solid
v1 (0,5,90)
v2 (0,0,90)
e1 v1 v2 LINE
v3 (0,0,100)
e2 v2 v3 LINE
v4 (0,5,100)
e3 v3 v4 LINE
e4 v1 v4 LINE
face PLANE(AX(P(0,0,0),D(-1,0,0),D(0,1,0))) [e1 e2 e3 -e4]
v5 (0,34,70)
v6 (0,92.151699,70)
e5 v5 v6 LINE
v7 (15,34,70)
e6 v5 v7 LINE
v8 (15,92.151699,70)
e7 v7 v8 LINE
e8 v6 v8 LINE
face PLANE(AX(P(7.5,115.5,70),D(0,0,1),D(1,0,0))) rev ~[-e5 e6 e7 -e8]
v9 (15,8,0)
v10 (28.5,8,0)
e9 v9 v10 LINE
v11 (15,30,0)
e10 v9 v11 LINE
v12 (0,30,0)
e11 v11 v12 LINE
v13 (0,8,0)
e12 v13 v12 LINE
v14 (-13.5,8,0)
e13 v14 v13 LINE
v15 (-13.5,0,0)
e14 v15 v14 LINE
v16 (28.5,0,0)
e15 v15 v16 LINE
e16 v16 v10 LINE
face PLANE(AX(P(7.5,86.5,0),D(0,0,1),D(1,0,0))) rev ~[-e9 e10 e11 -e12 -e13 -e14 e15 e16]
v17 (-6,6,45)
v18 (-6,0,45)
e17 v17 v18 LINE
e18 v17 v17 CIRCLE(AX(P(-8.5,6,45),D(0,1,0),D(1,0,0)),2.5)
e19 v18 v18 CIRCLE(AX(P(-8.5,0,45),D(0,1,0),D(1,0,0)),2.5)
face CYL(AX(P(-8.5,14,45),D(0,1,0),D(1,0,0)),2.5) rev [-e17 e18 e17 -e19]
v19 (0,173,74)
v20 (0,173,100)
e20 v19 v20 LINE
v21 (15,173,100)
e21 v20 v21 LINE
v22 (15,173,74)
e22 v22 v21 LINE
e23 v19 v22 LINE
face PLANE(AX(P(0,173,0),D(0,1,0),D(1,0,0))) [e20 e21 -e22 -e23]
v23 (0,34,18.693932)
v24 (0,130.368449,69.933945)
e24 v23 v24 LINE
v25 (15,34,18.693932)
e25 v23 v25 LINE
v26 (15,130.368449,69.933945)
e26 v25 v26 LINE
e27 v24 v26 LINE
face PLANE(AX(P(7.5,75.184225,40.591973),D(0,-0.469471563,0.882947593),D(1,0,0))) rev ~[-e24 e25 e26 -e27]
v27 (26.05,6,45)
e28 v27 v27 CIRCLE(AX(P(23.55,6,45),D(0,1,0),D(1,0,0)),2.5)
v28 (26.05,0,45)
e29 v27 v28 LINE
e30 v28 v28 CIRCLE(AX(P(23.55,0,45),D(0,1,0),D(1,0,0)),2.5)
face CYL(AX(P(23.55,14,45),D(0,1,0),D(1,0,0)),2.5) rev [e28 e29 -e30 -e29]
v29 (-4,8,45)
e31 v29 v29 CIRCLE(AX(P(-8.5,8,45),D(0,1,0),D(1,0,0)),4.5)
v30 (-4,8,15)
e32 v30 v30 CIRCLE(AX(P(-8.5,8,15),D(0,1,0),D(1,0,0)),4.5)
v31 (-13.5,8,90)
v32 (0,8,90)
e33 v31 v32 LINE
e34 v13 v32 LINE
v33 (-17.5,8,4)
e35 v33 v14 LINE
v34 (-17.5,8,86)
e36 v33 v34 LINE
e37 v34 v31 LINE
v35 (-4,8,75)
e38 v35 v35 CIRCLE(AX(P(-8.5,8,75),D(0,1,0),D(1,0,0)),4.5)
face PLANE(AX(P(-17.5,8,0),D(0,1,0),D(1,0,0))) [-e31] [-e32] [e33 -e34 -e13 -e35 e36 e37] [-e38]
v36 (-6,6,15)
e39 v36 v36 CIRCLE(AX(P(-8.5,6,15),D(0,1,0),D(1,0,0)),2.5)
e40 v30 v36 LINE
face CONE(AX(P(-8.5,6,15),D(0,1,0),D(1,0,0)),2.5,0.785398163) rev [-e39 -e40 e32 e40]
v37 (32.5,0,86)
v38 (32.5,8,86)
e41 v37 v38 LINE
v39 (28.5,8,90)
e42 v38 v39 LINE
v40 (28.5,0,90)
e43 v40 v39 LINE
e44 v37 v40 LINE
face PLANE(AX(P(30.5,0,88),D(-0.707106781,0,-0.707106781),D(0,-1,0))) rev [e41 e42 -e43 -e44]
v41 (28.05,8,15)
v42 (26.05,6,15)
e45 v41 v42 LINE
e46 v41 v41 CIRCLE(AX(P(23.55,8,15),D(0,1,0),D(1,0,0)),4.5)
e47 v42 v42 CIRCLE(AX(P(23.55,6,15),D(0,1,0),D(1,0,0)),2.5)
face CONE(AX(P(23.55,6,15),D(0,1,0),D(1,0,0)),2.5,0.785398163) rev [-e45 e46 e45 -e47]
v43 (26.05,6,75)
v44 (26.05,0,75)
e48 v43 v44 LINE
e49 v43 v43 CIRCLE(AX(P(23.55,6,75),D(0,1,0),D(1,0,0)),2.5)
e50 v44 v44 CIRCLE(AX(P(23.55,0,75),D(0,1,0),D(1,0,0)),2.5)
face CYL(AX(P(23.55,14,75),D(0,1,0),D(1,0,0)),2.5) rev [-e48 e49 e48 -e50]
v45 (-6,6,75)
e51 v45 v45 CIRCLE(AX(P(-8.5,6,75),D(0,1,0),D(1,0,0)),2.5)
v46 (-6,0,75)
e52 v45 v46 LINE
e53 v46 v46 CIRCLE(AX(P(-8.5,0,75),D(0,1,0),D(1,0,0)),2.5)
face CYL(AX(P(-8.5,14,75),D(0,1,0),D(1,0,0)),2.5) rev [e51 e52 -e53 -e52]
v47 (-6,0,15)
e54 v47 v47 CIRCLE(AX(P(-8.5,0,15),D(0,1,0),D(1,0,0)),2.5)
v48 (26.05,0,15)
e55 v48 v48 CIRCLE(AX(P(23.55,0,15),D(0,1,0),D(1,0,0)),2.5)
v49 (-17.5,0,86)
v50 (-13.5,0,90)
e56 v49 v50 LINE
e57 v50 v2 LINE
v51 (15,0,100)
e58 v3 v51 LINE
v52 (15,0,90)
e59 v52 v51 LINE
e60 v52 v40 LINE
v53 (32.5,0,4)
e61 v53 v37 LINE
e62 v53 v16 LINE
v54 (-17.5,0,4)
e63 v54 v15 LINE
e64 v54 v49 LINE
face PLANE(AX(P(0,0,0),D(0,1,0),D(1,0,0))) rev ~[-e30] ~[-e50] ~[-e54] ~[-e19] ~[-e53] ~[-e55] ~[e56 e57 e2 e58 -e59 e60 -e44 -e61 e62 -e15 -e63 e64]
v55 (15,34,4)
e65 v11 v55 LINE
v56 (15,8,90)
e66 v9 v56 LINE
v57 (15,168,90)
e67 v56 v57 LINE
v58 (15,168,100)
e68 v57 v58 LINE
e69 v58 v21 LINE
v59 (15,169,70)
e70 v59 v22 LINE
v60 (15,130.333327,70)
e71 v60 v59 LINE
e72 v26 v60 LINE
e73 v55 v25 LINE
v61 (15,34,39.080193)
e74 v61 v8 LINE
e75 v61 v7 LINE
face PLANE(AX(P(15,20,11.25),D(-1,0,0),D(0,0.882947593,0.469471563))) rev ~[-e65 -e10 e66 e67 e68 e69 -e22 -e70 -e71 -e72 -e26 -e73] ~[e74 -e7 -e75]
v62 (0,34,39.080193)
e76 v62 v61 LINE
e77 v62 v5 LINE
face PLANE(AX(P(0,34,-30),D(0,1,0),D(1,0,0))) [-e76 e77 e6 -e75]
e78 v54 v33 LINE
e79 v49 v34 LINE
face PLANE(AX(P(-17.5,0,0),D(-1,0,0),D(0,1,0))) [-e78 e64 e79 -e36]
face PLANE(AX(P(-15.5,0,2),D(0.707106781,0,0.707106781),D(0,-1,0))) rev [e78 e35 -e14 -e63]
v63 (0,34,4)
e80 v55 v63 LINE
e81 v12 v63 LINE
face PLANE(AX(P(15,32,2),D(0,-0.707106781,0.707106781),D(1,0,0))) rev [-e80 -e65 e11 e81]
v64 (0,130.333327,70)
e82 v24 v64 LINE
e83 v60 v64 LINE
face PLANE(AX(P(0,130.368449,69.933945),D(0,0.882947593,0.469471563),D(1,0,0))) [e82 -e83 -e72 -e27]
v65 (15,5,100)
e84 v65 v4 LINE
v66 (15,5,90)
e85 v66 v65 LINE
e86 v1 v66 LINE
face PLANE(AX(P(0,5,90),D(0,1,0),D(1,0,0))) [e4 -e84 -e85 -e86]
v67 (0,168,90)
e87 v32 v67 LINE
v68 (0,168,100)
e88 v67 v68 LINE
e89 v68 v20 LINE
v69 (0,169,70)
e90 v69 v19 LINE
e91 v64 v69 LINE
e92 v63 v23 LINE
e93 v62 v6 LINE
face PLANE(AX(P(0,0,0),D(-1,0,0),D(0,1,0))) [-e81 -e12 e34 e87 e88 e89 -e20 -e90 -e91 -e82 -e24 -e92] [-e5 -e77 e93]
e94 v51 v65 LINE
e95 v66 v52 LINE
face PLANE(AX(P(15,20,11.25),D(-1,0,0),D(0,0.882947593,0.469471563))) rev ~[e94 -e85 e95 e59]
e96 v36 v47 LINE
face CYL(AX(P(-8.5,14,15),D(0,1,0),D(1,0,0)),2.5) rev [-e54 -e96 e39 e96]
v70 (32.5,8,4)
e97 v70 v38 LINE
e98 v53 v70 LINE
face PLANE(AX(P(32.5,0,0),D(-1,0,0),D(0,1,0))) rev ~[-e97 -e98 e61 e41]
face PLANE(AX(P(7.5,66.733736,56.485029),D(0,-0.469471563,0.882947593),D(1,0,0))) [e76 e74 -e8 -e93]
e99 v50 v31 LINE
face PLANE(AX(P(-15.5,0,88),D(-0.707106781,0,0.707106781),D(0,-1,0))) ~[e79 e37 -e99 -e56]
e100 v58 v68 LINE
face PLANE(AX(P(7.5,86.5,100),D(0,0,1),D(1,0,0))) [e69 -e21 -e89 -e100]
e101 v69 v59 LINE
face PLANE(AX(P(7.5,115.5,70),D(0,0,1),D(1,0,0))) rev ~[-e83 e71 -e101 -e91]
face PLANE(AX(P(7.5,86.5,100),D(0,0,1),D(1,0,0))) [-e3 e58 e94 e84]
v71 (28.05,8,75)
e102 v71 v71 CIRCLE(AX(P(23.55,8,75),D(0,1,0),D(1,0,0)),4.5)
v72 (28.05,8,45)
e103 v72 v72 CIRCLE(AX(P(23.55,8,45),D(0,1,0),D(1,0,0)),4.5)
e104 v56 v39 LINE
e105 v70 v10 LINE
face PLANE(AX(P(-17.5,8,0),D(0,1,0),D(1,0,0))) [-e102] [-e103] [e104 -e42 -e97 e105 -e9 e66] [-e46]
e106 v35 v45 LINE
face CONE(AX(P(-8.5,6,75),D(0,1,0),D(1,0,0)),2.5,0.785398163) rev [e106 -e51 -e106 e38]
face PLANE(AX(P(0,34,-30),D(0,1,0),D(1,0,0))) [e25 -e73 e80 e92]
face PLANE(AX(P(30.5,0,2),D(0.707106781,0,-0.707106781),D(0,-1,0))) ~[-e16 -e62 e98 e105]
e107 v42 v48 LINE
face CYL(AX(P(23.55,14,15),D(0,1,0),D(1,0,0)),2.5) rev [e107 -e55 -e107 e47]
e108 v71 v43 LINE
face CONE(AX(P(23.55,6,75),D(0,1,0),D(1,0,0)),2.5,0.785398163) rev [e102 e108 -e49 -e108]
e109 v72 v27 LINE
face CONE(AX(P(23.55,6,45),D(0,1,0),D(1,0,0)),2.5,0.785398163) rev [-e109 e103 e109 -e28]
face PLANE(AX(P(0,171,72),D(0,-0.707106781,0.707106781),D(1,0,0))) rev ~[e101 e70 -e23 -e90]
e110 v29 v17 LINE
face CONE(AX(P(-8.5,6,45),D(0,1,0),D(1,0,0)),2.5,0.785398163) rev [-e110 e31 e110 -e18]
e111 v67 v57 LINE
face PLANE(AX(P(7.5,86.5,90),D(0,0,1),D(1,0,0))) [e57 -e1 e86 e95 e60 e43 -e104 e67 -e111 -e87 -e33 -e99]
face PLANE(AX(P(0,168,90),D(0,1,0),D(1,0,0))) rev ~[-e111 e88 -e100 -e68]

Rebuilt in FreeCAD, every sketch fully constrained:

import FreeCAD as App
import Part
import Sketcher


def edges_at(feature, points):
    """Names of the edges that pass closest to the given points."""
    edges = feature.Shape.Edges
    near = lambda p: min(range(len(edges)), key=lambda i: edges[i].distToShape(Part.Vertex(*p))[0])
    return sorted({f"Edge{near(p) + 1}" for p in points})

doc = App.newDocument("Part")
body = doc.addObject("PartDesign::Body", "Body")

# Sketch on XY plane
sketch1 = body.newObject("Sketcher::SketchObject", "Sketch")
sketch1.AttachmentSupport = (doc.getObject("XY_Plane"), [""])
sketch1.MapMode = "FlatFace"
sketch1.addGeometry(Part.Circle(App.Vector(0, 0, 0), App.Vector(0, 0, 1), 2.5), False)
sketch1.addConstraint(Sketcher.Constraint("Coincident", 0, 3, -1, 1))
sketch1.addConstraint(Sketcher.Constraint("Diameter", 0, 5.0))
pad1 = body.newObject("PartDesign::Pad", "Pad")
pad1.Profile = sketch1
pad1.Length = 20
body2 = doc.addObject("PartDesign::Body", "Body001")
doc.recompute()

body.Placement = App.Placement(App.Vector(0, 0, 0), App.Rotation(App.Vector(1, 0, 0), 90))
boolean = body2.newObject("PartDesign::Boolean", "Boolean")
boolean.Type = "Fuse"
boolean.addObjects([body])
body3 = doc.addObject("PartDesign::Body", "Body002")
doc.recompute()

body2.Placement = App.Placement(App.Vector(-8.5, 14, 75), App.Rotation(App.Vector(0, 0, 1), 0))
boolean2 = body3.newObject("PartDesign::Boolean", "Boolean001")
boolean2.Type = "Fuse"
boolean2.addObjects([body2])
body4 = doc.addObject("PartDesign::Body", "Body003")

# Sketch on XY plane
sketch2 = body4.newObject("Sketcher::SketchObject", "Sketch001")
sketch2.AttachmentSupport = (doc.getObject("XY_Plane003"), [""])
sketch2.MapMode = "FlatFace"
sketch2.addGeometry(Part.Circle(App.Vector(0, 0, 0), App.Vector(0, 0, 1), 2.5), False)
sketch2.addConstraint(Sketcher.Constraint("Coincident", 0, 3, -1, 1))
sketch2.addConstraint(Sketcher.Constraint("Diameter", 0, 5.0))
pad2 = body4.newObject("PartDesign::Pad", "Pad001")
pad2.Profile = sketch2
pad2.Length = 20
body5 = doc.addObject("PartDesign::Body", "Body004")
doc.recompute()

body4.Placement = App.Placement(App.Vector(0, 0, 0), App.Rotation(App.Vector(1, 0, 0), 90))
boolean3 = body5.newObject("PartDesign::Boolean", "Boolean002")
boolean3.Type = "Fuse"
boolean3.addObjects([body4])
body6 = doc.addObject("PartDesign::Body", "Body005")
doc.recompute()

body5.Placement = App.Placement(App.Vector(23.55, 14, 75), App.Rotation(App.Vector(0, 0, 1), 0))
boolean4 = body6.newObject("PartDesign::Boolean", "Boolean003")
boolean4.Type = "Fuse"
boolean4.addObjects([body5])
body7 = doc.addObject("PartDesign::Body", "Body006")

# Sketch on XY plane
sketch3 = body7.newObject("Sketcher::SketchObject", "Sketch002")
sketch3.AttachmentSupport = (doc.getObject("XY_Plane006"), [""])
sketch3.MapMode = "FlatFace"
sketch3.addGeometry(Part.Circle(App.Vector(0, 0, 0), App.Vector(0, 0, 1), 2.5), False)
sketch3.addConstraint(Sketcher.Constraint("Coincident", 0, 3, -1, 1))
sketch3.addConstraint(Sketcher.Constraint("Diameter", 0, 5.0))
pad3 = body7.newObject("PartDesign::Pad", "Pad002")
pad3.Profile = sketch3
pad3.Length = 20
body8 = doc.addObject("PartDesign::Body", "Body007")
doc.recompute()

body7.Placement = App.Placement(App.Vector(0, 0, 0), App.Rotation(App.Vector(1, 0, 0), 90))
boolean5 = body8.newObject("PartDesign::Boolean", "Boolean004")
boolean5.Type = "Fuse"
boolean5.addObjects([body7])
body9 = doc.addObject("PartDesign::Body", "Body008")
doc.recompute()

body8.Placement = App.Placement(App.Vector(-8.5, 14, 45), App.Rotation(App.Vector(0, 0, 1), 0))
boolean6 = body9.newObject("PartDesign::Boolean", "Boolean005")
boolean6.Type = "Fuse"
boolean6.addObjects([body8])
body10 = doc.addObject("PartDesign::Body", "Body009")

# Sketch on XY plane
sketch4 = body10.newObject("Sketcher::SketchObject", "Sketch003")
sketch4.AttachmentSupport = (doc.getObject("XY_Plane009"), [""])
sketch4.MapMode = "FlatFace"
sketch4.addGeometry(Part.Circle(App.Vector(0, 0, 0), App.Vector(0, 0, 1), 2.5), False)
sketch4.addConstraint(Sketcher.Constraint("Coincident", 0, 3, -1, 1))
sketch4.addConstraint(Sketcher.Constraint("Diameter", 0, 5.0))
pad4 = body10.newObject("PartDesign::Pad", "Pad003")
pad4.Profile = sketch4
pad4.Length = 20
body11 = doc.addObject("PartDesign::Body", "Body010")
doc.recompute()

body10.Placement = App.Placement(App.Vector(0, 0, 0), App.Rotation(App.Vector(1, 0, 0), 90))
boolean7 = body11.newObject("PartDesign::Boolean", "Boolean006")
boolean7.Type = "Fuse"
boolean7.addObjects([body10])
body12 = doc.addObject("PartDesign::Body", "Body011")
doc.recompute()

body11.Placement = App.Placement(App.Vector(23.55, 14, 45), App.Rotation(App.Vector(0, 0, 1), 0))
boolean8 = body12.newObject("PartDesign::Boolean", "Boolean007")
boolean8.Type = "Fuse"
boolean8.addObjects([body11])
body13 = doc.addObject("PartDesign::Body", "Body012")

# Sketch on XY plane
sketch5 = body13.newObject("Sketcher::SketchObject", "Sketch004")
sketch5.AttachmentSupport = (doc.getObject("XY_Plane012"), [""])
sketch5.MapMode = "FlatFace"
sketch5.addGeometry(Part.Circle(App.Vector(0, 0, 0), App.Vector(0, 0, 1), 2.5), False)
sketch5.addConstraint(Sketcher.Constraint("Coincident", 0, 3, -1, 1))
sketch5.addConstraint(Sketcher.Constraint("Diameter", 0, 5.0))
pad5 = body13.newObject("PartDesign::Pad", "Pad004")
pad5.Profile = sketch5
pad5.Length = 20
body14 = doc.addObject("PartDesign::Body", "Body013")
doc.recompute()

body13.Placement = App.Placement(App.Vector(0, 0, 0), App.Rotation(App.Vector(1, 0, 0), 90))
boolean9 = body14.newObject("PartDesign::Boolean", "Boolean008")
boolean9.Type = "Fuse"
boolean9.addObjects([body13])
body15 = doc.addObject("PartDesign::Body", "Body014")
doc.recompute()

body14.Placement = App.Placement(App.Vector(-8.5, 14, 15), App.Rotation(App.Vector(0, 0, 1), 0))
boolean10 = body15.newObject("PartDesign::Boolean", "Boolean009")
boolean10.Type = "Fuse"
boolean10.addObjects([body14])
body16 = doc.addObject("PartDesign::Body", "Body015")

# Sketch on XY plane
sketch6 = body16.newObject("Sketcher::SketchObject", "Sketch005")
sketch6.AttachmentSupport = (doc.getObject("XY_Plane015"), [""])
sketch6.MapMode = "FlatFace"
sketch6.addGeometry(Part.Circle(App.Vector(0, 0, 0), App.Vector(0, 0, 1), 2.5), False)
sketch6.addConstraint(Sketcher.Constraint("Coincident", 0, 3, -1, 1))
sketch6.addConstraint(Sketcher.Constraint("Diameter", 0, 5.0))
pad6 = body16.newObject("PartDesign::Pad", "Pad005")
pad6.Profile = sketch6
pad6.Length = 20
body17 = doc.addObject("PartDesign::Body", "Body016")
doc.recompute()

body16.Placement = App.Placement(App.Vector(0, 0, 0), App.Rotation(App.Vector(1, 0, 0), 90))
boolean11 = body17.newObject("PartDesign::Boolean", "Boolean010")
boolean11.Type = "Fuse"
boolean11.addObjects([body16])
body18 = doc.addObject("PartDesign::Body", "Body017")
doc.recompute()

body17.Placement = App.Placement(App.Vector(23.55, 14, 15), App.Rotation(App.Vector(0, 0, 1), 0))
boolean12 = body18.newObject("PartDesign::Boolean", "Boolean011")
boolean12.Type = "Fuse"
boolean12.addObjects([body17])
body19 = doc.addObject("PartDesign::Body", "Body018")

# Sketch on XY plane
sketch7 = body19.newObject("Sketcher::SketchObject", "Sketch006")
sketch7.AttachmentSupport = (doc.getObject("XY_Plane018"), [""])
sketch7.MapMode = "FlatFace"
sketch7.AttachmentOffset = App.Placement(App.Vector(0, 0, 90), App.Rotation())
sketch7.addGeometry(Part.LineSegment(App.Vector(0, 168, 0), App.Vector(0, 5, 0)), False)
sketch7.addGeometry(Part.LineSegment(App.Vector(0, 5, 0), App.Vector(15, 5, 0)), False)
sketch7.addGeometry(Part.LineSegment(App.Vector(15, 5, 0), App.Vector(15, 168, 0)), False)
sketch7.addGeometry(Part.LineSegment(App.Vector(15, 168, 0), App.Vector(0, 168, 0)), False)
sketch7.addConstraint(Sketcher.Constraint("Coincident", 0, 2, 1, 1))
sketch7.addConstraint(Sketcher.Constraint("Coincident", 1, 2, 2, 1))
sketch7.addConstraint(Sketcher.Constraint("Coincident", 2, 2, 3, 1))
sketch7.addConstraint(Sketcher.Constraint("Coincident", 3, 2, 0, 1))
sketch7.addConstraint(Sketcher.Constraint("Vertical", 0))
sketch7.addConstraint(Sketcher.Constraint("Horizontal", 1))
sketch7.addConstraint(Sketcher.Constraint("Vertical", 2))
sketch7.addConstraint(Sketcher.Constraint("Horizontal", 3))
sketch7.addConstraint(Sketcher.Constraint("PointOnObject", 0, 2, -2))
sketch7.addConstraint(Sketcher.Constraint("DistanceX", 1, 1, 1, 2, 15.0))
sketch7.addConstraint(Sketcher.Constraint("DistanceY", 0, 2, 0, 1, 163.0))
sketch7.addConstraint(Sketcher.Constraint("DistanceY", -1, 1, 0, 2, 5.0))
pad7 = body19.newObject("PartDesign::Pad", "Pad006")
pad7.Profile = sketch7
pad7.Length = 100
body20 = doc.addObject("PartDesign::Body", "Body019")

# Sketch on XY plane
sketch8 = body20.newObject("Sketcher::SketchObject", "Sketch007")
sketch8.AttachmentSupport = (doc.getObject("XY_Plane019"), [""])
sketch8.MapMode = "FlatFace"
sketch8.addGeometry(Part.LineSegment(App.Vector(0, 125, 0), App.Vector(0, 0, 0)), False)
sketch8.addGeometry(Part.LineSegment(App.Vector(0, 0, 0), App.Vector(15, 0, 0)), False)
sketch8.addGeometry(Part.LineSegment(App.Vector(15, 0, 0), App.Vector(15, 125, 0)), False)
sketch8.addGeometry(Part.LineSegment(App.Vector(15, 125, 0), App.Vector(0, 125, 0)), False)
sketch8.addConstraint(Sketcher.Constraint("Coincident", 0, 2, 1, 1))
sketch8.addConstraint(Sketcher.Constraint("Coincident", 1, 2, 2, 1))
sketch8.addConstraint(Sketcher.Constraint("Coincident", 2, 2, 3, 1))
sketch8.addConstraint(Sketcher.Constraint("Coincident", 3, 2, 0, 1))
sketch8.addConstraint(Sketcher.Constraint("Vertical", 0))
sketch8.addConstraint(Sketcher.Constraint("Horizontal", 1))
sketch8.addConstraint(Sketcher.Constraint("Vertical", 2))
sketch8.addConstraint(Sketcher.Constraint("Horizontal", 3))
sketch8.addConstraint(Sketcher.Constraint("Coincident", 0, 2, -1, 1))
sketch8.addConstraint(Sketcher.Constraint("DistanceX", 1, 1, 1, 2, 15.0))
sketch8.addConstraint(Sketcher.Constraint("DistanceY", 0, 2, 0, 1, 125.0))
pad8 = body20.newObject("PartDesign::Pad", "Pad007")
pad8.Profile = sketch8
pad8.Length = 18
body21 = doc.addObject("PartDesign::Body", "Body020")
doc.recompute()

body20.Placement = App.Placement(App.Vector(0, 0, 0), App.Rotation(App.Vector(1, 0, 0), 28))
boolean13 = body21.newObject("PartDesign::Boolean", "Boolean012")
boolean13.Type = "Fuse"
boolean13.addObjects([body20])
body22 = doc.addObject("PartDesign::Body", "Body021")
doc.recompute()

body21.Placement = App.Placement(App.Vector(0, 20, 11.25), App.Rotation(App.Vector(0, 0, 1), 0))
boolean14 = body22.newObject("PartDesign::Boolean", "Boolean013")
boolean14.Type = "Fuse"
boolean14.addObjects([body21])
body23 = doc.addObject("PartDesign::Body", "Body022")

# Sketch on XY plane
sketch9 = body23.newObject("Sketcher::SketchObject", "Sketch008")
sketch9.AttachmentSupport = (doc.getObject("XY_Plane022"), [""])
sketch9.MapMode = "FlatFace"
sketch9.AttachmentOffset = App.Placement(App.Vector(0, 0, -30), App.Rotation())
sketch9.addGeometry(Part.LineSegment(App.Vector(0, 197, 0), App.Vector(0, 34, 0)), False)
sketch9.addGeometry(Part.LineSegment(App.Vector(0, 34, 0), App.Vector(15, 34, 0)), False)
sketch9.addGeometry(Part.LineSegment(App.Vector(15, 34, 0), App.Vector(15, 197, 0)), False)
sketch9.addGeometry(Part.LineSegment(App.Vector(15, 197, 0), App.Vector(0, 197, 0)), False)
sketch9.addConstraint(Sketcher.Constraint("Coincident", 0, 2, 1, 1))
sketch9.addConstraint(Sketcher.Constraint("Coincident", 1, 2, 2, 1))
sketch9.addConstraint(Sketcher.Constraint("Coincident", 2, 2, 3, 1))
sketch9.addConstraint(Sketcher.Constraint("Coincident", 3, 2, 0, 1))
sketch9.addConstraint(Sketcher.Constraint("Vertical", 0))
sketch9.addConstraint(Sketcher.Constraint("Horizontal", 1))
sketch9.addConstraint(Sketcher.Constraint("Vertical", 2))
sketch9.addConstraint(Sketcher.Constraint("Horizontal", 3))
sketch9.addConstraint(Sketcher.Constraint("PointOnObject", 0, 2, -2))
sketch9.addConstraint(Sketcher.Constraint("DistanceX", 1, 1, 1, 2, 15.0))
sketch9.addConstraint(Sketcher.Constraint("DistanceY", 0, 2, 0, 1, 163.0))
sketch9.addConstraint(Sketcher.Constraint("DistanceY", -1, 1, 0, 2, 34.0))
pad9 = body23.newObject("PartDesign::Pad", "Pad008")
pad9.Profile = sketch9
pad9.Length = 100
body24 = doc.addObject("PartDesign::Body", "Body023")

# Sketch on XY plane
sketch10 = body24.newObject("Sketcher::SketchObject", "Sketch009")
sketch10.AttachmentSupport = (doc.getObject("XY_Plane023"), [""])
sketch10.MapMode = "FlatFace"
sketch10.addGeometry(Part.LineSegment(App.Vector(0, 173, 0), App.Vector(0, 0, 0)), False)
sketch10.addGeometry(Part.LineSegment(App.Vector(0, 0, 0), App.Vector(15, 0, 0)), False)
sketch10.addGeometry(Part.LineSegment(App.Vector(15, 0, 0), App.Vector(15, 173, 0)), False)
sketch10.addGeometry(Part.LineSegment(App.Vector(15, 173, 0), App.Vector(0, 173, 0)), False)
sketch10.addConstraint(Sketcher.Constraint("Coincident", 0, 2, 1, 1))
sketch10.addConstraint(Sketcher.Constraint("Coincident", 1, 2, 2, 1))
sketch10.addConstraint(Sketcher.Constraint("Coincident", 2, 2, 3, 1))
sketch10.addConstraint(Sketcher.Constraint("Coincident", 3, 2, 0, 1))
sketch10.addConstraint(Sketcher.Constraint("Vertical", 0))
sketch10.addConstraint(Sketcher.Constraint("Horizontal", 1))
sketch10.addConstraint(Sketcher.Constraint("Vertical", 2))
sketch10.addConstraint(Sketcher.Constraint("Horizontal", 3))
sketch10.addConstraint(Sketcher.Constraint("Coincident", 0, 2, -1, 1))
sketch10.addConstraint(Sketcher.Constraint("DistanceX", 1, 1, 1, 2, 15.0))
sketch10.addConstraint(Sketcher.Constraint("DistanceY", 0, 2, 0, 1, 173.0))
pad10 = body24.newObject("PartDesign::Pad", "Pad009")
pad10.Profile = sketch10
pad10.Length = 100
doc.recompute()

boolean15 = body24.newObject("PartDesign::Boolean", "Boolean014")
boolean15.Type = "Cut"
boolean15.addObjects([body23])
doc.recompute()

boolean16 = body24.newObject("PartDesign::Boolean", "Boolean015")
boolean16.Type = "Fuse"
boolean16.addObjects([body22])
doc.recompute()

chamfer = body24.newObject("PartDesign::Chamfer", "Chamfer")
chamfer.Base = (boolean16, edges_at(boolean16, [(7.5, 34, 0)]))
chamfer.Size = 4
body25 = doc.addObject("PartDesign::Body", "Body024")

# Sketch on XY plane
sketch11 = body25.newObject("Sketcher::SketchObject", "Sketch010")
sketch11.AttachmentSupport = (doc.getObject("XY_Plane024"), [""])
sketch11.MapMode = "FlatFace"
sketch11.addGeometry(Part.LineSegment(App.Vector(-18, 8, 0), App.Vector(-18, 0, 0)), False)
sketch11.addGeometry(Part.LineSegment(App.Vector(-18, 0, 0), App.Vector(32, 0, 0)), False)
sketch11.addGeometry(Part.LineSegment(App.Vector(32, 0, 0), App.Vector(32, 8, 0)), False)
sketch11.addGeometry(Part.LineSegment(App.Vector(32, 8, 0), App.Vector(-18, 8, 0)), False)
sketch11.addConstraint(Sketcher.Constraint("Coincident", 0, 2, 1, 1))
sketch11.addConstraint(Sketcher.Constraint("Coincident", 1, 2, 2, 1))
sketch11.addConstraint(Sketcher.Constraint("Coincident", 2, 2, 3, 1))
sketch11.addConstraint(Sketcher.Constraint("Coincident", 3, 2, 0, 1))
sketch11.addConstraint(Sketcher.Constraint("Vertical", 0))
sketch11.addConstraint(Sketcher.Constraint("Horizontal", 1))
sketch11.addConstraint(Sketcher.Constraint("Vertical", 2))
sketch11.addConstraint(Sketcher.Constraint("Horizontal", 3))
sketch11.addConstraint(Sketcher.Constraint("PointOnObject", 0, 2, -1))
sketch11.addConstraint(Sketcher.Constraint("DistanceX", 1, 1, 1, 2, 50.0))
sketch11.addConstraint(Sketcher.Constraint("DistanceY", 0, 2, 0, 1, 8.0))
sketch11.addConstraint(Sketcher.Constraint("DistanceX", 0, 2, -1, 1, 17.5))
pad11 = body25.newObject("PartDesign::Pad", "Pad010")
pad11.Profile = sketch11
pad11.Length = 90
doc.recompute()

chamfer2 = body25.newObject("PartDesign::Chamfer", "Chamfer001")
chamfer2.Base = (pad11, edges_at(pad11, [
    (-17.5, 4, 90),
    (-17.5, 4, 0),
    (32.5, 4, 90),
    (32.5, 4, 0),
]))
chamfer2.Size = 4
doc.recompute()

boolean17 = body25.newObject("PartDesign::Boolean", "Boolean016")
boolean17.Type = "Fuse"
boolean17.addObjects([body24])
doc.recompute()

boolean18 = body25.newObject("PartDesign::Boolean", "Boolean017")
boolean18.Type = "Cut"
boolean18.addObjects([body19])
doc.recompute()

chamfer3 = body25.newObject("PartDesign::Chamfer", "Chamfer002")
chamfer3.Base = (boolean18, edges_at(boolean18, [(7.5, 173, 70)]))
chamfer3.Size = 4
doc.recompute()

boolean19 = body25.newObject("PartDesign::Boolean", "Boolean018")
boolean19.Type = "Cut"
boolean19.addObjects([body18])
doc.recompute()

boolean20 = body25.newObject("PartDesign::Boolean", "Boolean019")
boolean20.Type = "Cut"
boolean20.addObjects([body15])
doc.recompute()

boolean21 = body25.newObject("PartDesign::Boolean", "Boolean020")
boolean21.Type = "Cut"
boolean21.addObjects([body12])
doc.recompute()

boolean22 = body25.newObject("PartDesign::Boolean", "Boolean021")
boolean22.Type = "Cut"
boolean22.addObjects([body9])
doc.recompute()

boolean23 = body25.newObject("PartDesign::Boolean", "Boolean022")
boolean23.Type = "Cut"
boolean23.addObjects([body6])
doc.recompute()

boolean24 = body25.newObject("PartDesign::Boolean", "Boolean023")
boolean24.Type = "Cut"
boolean24.addObjects([body3])
doc.recompute()

chamfer4 = body25.newObject("PartDesign::Chamfer", "Chamfer003")
chamfer4.Base = (boolean24, edges_at(boolean24, [
    (-11, 8, 75),
    (-11, 8, 45),
    (-11, 8, 15),
    (21.05, 8, 75),
    (21.05, 8, 45),
    (21.05, 8, 15),
]))
chamfer4.Size = 2

doc.recompute()
